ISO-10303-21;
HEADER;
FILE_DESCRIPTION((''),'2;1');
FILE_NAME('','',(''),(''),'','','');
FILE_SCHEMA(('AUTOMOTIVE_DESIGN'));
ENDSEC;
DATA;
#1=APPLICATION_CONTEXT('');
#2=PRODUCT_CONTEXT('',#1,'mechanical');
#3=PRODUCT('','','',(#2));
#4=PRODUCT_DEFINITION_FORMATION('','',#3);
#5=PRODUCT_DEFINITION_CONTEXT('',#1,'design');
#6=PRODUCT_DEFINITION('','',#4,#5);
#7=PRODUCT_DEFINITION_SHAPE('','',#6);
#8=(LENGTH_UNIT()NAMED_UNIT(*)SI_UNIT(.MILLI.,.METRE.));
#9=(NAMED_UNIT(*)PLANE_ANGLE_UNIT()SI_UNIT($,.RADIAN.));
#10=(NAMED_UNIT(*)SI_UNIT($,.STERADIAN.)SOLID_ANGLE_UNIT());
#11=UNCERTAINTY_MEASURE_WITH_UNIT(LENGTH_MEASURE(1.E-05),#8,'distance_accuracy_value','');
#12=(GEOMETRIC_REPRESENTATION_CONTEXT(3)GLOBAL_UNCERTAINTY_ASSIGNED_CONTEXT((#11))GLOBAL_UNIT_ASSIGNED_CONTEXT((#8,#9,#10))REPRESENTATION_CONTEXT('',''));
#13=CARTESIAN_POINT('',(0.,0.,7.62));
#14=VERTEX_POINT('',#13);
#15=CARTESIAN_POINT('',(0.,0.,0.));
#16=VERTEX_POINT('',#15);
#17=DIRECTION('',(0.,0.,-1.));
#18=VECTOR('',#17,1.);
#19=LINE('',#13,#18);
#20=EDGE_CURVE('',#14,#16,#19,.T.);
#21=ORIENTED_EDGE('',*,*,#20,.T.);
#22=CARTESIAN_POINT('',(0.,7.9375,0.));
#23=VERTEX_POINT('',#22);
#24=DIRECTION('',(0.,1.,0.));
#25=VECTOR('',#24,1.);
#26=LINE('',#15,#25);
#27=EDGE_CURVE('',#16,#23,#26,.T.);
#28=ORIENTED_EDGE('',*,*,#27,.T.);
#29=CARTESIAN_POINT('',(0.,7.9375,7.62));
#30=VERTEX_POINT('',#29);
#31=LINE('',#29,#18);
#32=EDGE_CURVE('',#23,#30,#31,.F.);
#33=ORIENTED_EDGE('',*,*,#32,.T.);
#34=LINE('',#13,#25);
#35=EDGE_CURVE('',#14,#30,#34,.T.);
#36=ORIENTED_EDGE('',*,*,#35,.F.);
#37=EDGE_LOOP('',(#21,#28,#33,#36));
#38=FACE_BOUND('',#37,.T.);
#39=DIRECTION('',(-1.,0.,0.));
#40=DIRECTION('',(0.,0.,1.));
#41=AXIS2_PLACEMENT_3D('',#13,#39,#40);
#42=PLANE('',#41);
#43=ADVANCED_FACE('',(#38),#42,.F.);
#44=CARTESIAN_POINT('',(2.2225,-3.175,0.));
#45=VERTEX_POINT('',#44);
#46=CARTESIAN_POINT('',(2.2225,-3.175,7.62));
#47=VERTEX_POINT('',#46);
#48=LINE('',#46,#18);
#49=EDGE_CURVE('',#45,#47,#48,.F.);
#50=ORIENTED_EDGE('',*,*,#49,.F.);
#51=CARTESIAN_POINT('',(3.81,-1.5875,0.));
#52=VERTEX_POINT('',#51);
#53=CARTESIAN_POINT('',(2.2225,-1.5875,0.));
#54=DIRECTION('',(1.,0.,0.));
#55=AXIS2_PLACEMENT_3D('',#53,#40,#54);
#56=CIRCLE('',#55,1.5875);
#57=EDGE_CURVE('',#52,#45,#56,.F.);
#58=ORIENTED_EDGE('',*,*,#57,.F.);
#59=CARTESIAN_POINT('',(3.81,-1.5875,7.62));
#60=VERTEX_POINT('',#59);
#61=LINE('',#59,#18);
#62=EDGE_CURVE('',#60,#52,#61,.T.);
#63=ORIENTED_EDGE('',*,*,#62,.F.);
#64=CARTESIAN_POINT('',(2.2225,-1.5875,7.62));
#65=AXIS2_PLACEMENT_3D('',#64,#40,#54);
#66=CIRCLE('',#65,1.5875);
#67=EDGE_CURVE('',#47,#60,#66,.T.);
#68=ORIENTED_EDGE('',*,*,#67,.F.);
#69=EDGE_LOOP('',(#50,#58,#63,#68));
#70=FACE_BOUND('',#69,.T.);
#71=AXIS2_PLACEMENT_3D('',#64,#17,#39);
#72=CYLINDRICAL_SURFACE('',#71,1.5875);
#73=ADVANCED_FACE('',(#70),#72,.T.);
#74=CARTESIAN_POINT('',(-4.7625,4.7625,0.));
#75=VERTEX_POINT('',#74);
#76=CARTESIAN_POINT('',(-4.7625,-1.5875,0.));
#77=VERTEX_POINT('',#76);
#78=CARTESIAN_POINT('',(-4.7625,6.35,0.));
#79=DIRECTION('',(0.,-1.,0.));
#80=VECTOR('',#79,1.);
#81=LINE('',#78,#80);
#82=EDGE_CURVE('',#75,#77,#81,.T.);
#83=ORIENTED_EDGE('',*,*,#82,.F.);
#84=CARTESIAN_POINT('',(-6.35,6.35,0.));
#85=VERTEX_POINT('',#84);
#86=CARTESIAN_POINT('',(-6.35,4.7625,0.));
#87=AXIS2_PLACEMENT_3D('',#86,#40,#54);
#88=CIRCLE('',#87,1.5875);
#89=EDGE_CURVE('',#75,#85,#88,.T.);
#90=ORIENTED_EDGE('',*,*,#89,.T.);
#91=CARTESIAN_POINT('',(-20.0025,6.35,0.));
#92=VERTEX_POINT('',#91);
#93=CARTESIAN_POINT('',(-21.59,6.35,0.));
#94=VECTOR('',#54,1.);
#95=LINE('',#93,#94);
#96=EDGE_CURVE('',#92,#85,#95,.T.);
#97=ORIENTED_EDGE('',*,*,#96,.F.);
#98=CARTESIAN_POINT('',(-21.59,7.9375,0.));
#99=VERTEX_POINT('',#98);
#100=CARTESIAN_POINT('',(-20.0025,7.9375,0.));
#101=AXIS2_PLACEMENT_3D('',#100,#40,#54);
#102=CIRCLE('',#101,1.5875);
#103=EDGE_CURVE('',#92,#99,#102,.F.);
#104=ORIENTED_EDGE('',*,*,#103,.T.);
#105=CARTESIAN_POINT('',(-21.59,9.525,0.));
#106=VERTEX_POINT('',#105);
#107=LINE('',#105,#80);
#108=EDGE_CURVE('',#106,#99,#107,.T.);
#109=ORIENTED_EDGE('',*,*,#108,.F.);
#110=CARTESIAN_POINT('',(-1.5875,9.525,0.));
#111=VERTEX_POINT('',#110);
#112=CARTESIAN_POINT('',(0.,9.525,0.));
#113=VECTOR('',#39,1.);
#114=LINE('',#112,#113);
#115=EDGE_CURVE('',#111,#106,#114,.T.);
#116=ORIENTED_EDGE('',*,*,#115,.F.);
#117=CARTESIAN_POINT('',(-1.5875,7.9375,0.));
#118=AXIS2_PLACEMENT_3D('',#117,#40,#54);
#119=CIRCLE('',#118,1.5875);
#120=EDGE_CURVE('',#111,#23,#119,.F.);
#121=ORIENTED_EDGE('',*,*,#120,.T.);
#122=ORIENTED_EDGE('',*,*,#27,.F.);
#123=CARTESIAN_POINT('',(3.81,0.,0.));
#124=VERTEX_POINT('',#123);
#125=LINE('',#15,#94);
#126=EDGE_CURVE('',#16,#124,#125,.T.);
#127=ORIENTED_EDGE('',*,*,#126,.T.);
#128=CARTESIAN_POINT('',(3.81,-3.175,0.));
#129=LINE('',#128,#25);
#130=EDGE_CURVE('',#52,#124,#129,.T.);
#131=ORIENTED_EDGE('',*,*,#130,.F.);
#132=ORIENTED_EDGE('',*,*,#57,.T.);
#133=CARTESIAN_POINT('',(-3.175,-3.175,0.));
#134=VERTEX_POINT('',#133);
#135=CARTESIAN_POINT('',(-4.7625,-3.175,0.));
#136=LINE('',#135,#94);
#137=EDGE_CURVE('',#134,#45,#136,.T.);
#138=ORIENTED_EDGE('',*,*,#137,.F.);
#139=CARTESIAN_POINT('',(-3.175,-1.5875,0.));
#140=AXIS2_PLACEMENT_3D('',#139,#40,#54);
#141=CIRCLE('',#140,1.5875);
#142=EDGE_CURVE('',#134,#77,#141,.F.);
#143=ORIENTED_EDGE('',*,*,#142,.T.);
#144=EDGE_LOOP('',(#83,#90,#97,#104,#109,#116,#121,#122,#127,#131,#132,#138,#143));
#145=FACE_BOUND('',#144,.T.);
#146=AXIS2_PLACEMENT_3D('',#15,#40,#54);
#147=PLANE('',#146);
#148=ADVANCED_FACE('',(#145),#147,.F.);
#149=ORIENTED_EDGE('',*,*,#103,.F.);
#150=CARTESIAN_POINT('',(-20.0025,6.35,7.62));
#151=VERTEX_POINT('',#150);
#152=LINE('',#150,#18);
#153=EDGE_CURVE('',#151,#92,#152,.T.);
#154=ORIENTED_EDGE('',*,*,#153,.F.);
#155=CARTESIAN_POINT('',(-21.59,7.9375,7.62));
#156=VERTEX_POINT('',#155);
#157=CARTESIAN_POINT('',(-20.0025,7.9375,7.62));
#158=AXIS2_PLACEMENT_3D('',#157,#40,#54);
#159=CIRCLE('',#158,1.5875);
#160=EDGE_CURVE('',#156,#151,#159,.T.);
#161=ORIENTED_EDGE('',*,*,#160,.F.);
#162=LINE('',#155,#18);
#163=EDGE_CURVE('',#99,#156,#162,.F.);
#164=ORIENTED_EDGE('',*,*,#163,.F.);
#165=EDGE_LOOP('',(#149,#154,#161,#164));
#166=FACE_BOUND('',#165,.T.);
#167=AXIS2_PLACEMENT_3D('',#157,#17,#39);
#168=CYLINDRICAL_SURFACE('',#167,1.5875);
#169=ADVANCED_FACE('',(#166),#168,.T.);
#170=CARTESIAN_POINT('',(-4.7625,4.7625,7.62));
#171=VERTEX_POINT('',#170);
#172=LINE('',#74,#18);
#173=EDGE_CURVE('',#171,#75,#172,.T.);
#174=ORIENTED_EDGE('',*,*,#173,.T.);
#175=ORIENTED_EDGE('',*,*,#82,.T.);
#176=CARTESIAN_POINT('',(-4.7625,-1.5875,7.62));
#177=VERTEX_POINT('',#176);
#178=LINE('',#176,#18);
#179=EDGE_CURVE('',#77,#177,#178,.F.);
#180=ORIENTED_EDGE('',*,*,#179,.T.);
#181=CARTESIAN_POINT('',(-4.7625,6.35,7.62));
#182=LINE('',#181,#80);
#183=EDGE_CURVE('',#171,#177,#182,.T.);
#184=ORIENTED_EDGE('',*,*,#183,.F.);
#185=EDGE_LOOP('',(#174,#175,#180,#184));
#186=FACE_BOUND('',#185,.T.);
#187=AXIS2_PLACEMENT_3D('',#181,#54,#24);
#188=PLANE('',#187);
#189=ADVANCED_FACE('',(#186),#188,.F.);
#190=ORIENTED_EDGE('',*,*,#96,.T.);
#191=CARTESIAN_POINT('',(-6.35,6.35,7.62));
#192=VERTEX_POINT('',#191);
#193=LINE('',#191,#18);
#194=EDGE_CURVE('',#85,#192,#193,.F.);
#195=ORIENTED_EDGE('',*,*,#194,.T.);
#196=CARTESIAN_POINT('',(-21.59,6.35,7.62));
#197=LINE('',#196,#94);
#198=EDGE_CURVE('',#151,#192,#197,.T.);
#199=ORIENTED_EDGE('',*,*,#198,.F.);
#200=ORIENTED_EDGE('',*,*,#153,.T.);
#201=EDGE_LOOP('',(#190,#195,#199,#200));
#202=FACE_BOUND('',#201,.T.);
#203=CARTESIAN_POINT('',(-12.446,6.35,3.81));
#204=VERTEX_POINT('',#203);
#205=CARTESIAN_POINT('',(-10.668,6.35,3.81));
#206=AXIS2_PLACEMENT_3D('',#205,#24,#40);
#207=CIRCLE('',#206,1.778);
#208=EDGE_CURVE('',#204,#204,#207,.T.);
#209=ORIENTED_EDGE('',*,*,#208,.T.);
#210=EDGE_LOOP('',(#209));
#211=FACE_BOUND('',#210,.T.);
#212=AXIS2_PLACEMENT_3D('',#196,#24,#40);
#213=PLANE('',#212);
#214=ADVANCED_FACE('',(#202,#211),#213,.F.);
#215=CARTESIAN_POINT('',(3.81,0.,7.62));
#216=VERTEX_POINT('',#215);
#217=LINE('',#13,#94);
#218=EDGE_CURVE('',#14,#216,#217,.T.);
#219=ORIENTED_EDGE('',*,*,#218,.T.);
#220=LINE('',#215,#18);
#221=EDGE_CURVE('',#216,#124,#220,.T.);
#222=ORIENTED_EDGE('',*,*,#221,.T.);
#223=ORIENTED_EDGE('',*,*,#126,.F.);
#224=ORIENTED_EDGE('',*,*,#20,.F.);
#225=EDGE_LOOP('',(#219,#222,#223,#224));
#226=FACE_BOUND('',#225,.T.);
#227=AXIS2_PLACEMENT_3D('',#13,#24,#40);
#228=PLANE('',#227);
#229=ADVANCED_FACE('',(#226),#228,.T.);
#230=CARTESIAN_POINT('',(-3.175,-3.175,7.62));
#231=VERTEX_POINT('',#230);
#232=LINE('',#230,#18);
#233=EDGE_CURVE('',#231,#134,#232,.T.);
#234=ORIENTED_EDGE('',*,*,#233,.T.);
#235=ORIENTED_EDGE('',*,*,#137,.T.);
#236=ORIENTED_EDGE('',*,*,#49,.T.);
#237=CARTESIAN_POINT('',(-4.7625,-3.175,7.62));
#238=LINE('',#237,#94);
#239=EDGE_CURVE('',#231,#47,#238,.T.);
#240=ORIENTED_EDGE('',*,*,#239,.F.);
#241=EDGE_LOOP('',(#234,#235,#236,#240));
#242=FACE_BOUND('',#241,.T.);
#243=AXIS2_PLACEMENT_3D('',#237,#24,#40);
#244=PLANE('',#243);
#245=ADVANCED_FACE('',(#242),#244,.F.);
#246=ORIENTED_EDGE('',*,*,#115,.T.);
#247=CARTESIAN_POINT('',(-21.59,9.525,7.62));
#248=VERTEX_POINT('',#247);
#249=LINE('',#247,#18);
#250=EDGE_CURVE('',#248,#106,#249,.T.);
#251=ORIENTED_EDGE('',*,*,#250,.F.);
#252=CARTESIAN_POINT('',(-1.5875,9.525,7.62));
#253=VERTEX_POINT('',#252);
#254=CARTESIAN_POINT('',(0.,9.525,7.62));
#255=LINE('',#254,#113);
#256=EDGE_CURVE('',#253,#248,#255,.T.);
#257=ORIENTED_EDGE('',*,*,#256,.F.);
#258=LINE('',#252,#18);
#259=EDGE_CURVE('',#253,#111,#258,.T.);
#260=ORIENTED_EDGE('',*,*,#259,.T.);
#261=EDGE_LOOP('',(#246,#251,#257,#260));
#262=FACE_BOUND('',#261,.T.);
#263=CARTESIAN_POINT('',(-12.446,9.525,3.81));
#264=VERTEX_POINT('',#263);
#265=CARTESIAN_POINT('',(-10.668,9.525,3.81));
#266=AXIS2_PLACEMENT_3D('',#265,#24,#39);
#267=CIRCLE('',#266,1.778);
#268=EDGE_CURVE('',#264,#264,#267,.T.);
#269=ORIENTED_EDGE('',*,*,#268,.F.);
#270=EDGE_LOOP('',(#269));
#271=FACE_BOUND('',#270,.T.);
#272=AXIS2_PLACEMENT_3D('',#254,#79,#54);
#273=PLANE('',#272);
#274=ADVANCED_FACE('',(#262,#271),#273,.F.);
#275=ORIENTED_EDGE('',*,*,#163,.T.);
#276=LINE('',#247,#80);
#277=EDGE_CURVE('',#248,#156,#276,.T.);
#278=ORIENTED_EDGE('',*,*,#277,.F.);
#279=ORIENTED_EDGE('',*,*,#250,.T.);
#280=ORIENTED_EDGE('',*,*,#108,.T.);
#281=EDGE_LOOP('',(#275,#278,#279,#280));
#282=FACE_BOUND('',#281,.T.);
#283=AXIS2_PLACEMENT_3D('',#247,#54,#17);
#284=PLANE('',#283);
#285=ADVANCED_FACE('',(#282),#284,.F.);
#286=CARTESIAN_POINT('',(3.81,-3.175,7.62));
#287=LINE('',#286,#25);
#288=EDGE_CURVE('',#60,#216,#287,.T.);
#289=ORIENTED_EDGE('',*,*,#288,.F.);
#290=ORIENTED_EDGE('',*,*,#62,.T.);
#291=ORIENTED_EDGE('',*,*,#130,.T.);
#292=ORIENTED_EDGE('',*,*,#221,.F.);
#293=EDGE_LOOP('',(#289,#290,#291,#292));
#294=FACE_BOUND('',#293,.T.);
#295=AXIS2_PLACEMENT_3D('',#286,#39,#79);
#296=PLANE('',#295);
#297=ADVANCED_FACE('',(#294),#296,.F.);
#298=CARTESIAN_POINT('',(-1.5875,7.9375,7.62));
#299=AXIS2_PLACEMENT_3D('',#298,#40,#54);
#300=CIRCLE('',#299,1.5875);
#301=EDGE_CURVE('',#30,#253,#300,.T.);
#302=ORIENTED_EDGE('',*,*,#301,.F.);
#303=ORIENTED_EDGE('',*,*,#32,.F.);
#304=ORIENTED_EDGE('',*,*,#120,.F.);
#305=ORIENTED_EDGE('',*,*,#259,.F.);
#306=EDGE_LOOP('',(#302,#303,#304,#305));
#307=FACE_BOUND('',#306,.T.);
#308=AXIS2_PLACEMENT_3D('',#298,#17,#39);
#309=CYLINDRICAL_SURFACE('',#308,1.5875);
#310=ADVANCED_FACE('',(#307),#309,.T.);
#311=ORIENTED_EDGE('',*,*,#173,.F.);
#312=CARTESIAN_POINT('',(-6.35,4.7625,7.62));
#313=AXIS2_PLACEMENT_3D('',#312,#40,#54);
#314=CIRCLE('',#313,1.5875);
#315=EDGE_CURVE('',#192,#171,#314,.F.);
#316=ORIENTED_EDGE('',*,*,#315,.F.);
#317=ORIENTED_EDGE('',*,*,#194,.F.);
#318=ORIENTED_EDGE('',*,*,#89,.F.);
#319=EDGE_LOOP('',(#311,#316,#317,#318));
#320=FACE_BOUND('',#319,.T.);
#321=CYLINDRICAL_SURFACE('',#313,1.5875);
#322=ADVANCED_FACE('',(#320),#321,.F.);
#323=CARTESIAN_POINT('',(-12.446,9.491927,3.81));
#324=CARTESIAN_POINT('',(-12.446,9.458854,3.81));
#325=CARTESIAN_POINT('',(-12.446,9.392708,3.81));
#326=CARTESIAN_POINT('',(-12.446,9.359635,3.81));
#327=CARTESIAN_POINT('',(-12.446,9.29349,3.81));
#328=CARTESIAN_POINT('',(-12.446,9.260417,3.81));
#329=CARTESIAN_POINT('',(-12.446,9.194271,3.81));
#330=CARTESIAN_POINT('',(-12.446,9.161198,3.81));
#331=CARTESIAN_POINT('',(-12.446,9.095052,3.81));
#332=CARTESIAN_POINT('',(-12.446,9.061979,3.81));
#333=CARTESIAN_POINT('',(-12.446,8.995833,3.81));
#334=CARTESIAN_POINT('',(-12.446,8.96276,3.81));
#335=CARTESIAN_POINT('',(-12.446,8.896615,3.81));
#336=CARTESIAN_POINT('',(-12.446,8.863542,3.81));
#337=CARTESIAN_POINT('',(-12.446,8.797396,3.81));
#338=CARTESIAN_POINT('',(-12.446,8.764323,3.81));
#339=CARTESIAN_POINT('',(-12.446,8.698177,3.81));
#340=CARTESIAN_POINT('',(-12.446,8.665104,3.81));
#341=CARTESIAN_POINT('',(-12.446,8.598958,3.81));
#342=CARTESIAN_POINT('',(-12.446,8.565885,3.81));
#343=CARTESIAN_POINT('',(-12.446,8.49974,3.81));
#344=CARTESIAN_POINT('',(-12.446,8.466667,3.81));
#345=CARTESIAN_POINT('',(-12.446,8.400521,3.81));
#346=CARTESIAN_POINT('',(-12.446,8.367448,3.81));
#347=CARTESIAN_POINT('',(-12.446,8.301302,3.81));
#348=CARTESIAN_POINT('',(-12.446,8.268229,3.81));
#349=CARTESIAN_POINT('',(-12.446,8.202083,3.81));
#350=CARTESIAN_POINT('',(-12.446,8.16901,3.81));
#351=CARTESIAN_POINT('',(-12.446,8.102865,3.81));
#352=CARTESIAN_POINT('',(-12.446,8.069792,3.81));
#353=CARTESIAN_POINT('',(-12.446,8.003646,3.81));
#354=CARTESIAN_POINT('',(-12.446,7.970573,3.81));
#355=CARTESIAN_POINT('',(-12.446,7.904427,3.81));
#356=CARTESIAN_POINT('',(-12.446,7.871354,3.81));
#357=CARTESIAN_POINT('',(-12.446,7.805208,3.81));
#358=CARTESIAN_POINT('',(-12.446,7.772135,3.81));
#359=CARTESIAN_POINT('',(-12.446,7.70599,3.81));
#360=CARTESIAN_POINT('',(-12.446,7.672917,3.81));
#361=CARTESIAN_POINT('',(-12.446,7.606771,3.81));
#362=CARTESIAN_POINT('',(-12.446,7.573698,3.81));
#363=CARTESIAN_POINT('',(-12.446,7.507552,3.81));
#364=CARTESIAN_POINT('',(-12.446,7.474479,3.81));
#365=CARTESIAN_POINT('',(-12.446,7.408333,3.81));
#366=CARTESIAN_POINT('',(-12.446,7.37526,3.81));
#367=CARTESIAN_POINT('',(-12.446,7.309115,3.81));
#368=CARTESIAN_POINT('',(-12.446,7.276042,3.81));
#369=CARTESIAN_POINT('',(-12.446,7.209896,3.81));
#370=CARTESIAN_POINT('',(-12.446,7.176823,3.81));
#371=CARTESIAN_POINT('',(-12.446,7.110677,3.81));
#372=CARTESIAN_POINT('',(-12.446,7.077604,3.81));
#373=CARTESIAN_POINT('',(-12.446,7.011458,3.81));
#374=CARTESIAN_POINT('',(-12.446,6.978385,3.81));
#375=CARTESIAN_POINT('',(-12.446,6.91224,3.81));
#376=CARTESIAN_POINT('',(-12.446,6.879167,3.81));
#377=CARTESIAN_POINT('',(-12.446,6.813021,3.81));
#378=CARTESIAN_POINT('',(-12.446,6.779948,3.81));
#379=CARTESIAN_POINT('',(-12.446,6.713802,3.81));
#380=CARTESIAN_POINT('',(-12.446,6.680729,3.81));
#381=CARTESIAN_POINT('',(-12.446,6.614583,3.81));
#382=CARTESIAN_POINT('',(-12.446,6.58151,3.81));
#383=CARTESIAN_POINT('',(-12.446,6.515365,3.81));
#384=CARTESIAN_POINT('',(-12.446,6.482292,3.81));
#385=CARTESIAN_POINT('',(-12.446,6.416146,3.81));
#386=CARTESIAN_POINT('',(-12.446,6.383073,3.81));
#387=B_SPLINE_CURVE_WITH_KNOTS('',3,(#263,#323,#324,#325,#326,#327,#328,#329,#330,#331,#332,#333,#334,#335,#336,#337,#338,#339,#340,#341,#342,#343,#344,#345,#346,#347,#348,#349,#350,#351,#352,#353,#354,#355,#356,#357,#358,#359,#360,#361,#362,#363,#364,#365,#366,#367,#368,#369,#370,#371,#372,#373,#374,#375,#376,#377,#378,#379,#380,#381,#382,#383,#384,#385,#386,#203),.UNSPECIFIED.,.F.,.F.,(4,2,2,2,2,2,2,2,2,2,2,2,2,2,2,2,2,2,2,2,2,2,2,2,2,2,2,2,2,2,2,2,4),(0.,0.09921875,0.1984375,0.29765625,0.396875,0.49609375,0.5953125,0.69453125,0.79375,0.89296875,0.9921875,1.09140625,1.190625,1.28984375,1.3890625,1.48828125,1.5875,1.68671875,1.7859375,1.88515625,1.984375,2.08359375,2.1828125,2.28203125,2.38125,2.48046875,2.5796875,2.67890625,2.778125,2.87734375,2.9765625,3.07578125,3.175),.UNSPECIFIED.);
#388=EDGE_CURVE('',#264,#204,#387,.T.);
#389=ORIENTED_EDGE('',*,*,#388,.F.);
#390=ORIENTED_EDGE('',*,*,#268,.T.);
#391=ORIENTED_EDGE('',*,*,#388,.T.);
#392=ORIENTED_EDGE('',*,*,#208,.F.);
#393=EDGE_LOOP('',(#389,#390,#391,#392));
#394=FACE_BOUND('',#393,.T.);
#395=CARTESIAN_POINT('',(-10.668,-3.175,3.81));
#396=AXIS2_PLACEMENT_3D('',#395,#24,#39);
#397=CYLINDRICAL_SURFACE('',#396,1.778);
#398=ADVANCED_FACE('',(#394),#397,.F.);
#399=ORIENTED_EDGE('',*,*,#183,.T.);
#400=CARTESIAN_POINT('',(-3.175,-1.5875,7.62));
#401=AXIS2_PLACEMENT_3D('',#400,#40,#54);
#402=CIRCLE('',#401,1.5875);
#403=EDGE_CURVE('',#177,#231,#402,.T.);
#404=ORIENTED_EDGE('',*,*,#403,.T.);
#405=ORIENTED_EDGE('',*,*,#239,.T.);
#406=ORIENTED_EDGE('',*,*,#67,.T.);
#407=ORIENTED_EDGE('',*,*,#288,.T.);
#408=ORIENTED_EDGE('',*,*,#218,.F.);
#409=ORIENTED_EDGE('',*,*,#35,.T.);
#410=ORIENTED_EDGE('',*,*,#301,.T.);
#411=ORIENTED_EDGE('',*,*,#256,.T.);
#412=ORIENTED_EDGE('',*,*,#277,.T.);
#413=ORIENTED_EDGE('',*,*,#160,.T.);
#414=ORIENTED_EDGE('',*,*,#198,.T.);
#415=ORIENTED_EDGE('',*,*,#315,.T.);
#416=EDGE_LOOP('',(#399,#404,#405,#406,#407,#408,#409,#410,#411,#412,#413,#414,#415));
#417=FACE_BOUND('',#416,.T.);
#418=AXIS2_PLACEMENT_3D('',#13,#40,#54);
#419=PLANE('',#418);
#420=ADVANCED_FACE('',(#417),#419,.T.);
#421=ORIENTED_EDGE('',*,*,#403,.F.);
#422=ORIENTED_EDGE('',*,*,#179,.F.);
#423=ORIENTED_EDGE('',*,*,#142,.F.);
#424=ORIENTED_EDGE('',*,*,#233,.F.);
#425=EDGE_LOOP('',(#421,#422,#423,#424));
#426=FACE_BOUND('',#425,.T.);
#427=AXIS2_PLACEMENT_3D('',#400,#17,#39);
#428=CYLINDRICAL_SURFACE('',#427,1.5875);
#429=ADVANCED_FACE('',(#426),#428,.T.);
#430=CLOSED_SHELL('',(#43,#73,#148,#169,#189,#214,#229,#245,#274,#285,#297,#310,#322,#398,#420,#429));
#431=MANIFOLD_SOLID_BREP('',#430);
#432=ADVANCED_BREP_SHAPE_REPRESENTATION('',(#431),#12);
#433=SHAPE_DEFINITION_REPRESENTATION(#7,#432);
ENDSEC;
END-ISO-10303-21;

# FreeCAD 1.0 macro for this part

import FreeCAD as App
import Part
import Sketcher
Q = App.Units.Quantity


def edges_at(feature, points):
    """Names of the edges that pass closest to the given points."""
    edges = feature.Shape.Edges
    near = lambda p: min(range(len(edges)), key=lambda i: edges[i].distToShape(Part.Vertex(*p))[0])
    return sorted({f"Edge{near(p) + 1}" for p in points})

doc = App.newDocument("Part")
body = doc.addObject("PartDesign::Body", "Body")

sketch1 = body.newObject("Sketcher::SketchObject", "Sketch")
sketch1.AttachmentSupport = (doc.getObject("XY_Plane"), [""])
sketch1.MapMode = "FlatFace"
sketch1.addGeometry(Part.LineSegment(App.Vector(0, 0, 0), App.Vector(0, 9.525, 0)), False)
sketch1.addGeometry(Part.LineSegment(App.Vector(0, 9.525, 0), App.Vector(-21.59, 9.525, 0)), False)
sketch1.addGeometry(Part.LineSegment(App.Vector(-21.59, 9.525, 0), App.Vector(-21.59, 6.35, 0)), False)
sketch1.addGeometry(Part.LineSegment(App.Vector(-21.59, 6.35, 0), App.Vector(-4.7625, 6.35, 0)), False)
sketch1.addGeometry(Part.LineSegment(App.Vector(-4.7625, 6.35, 0), App.Vector(-4.7625, -3.175, 0)), False)
sketch1.addGeometry(Part.LineSegment(App.Vector(-4.7625, -3.175, 0), App.Vector(3.81, -3.175, 0)), False)
sketch1.addGeometry(Part.LineSegment(App.Vector(3.81, -3.175, 0), App.Vector(3.81, 0, 0)), False)
sketch1.addGeometry(Part.LineSegment(App.Vector(3.81, 0, 0), App.Vector(0, 0, 0)), False)
sketch1.addConstraint(Sketcher.Constraint("Coincident", 0, 2, 1, 1))
sketch1.addConstraint(Sketcher.Constraint("Coincident", 1, 2, 2, 1))
sketch1.addConstraint(Sketcher.Constraint("Coincident", 2, 2, 3, 1))
sketch1.addConstraint(Sketcher.Constraint("Coincident", 3, 2, 4, 1))
sketch1.addConstraint(Sketcher.Constraint("Coincident", 4, 2, 5, 1))
sketch1.addConstraint(Sketcher.Constraint("Coincident", 5, 2, 6, 1))
sketch1.addConstraint(Sketcher.Constraint("Coincident", 6, 2, 7, 1))
sketch1.addConstraint(Sketcher.Constraint("Coincident", 7, 2, 0, 1))
sketch1.addConstraint(Sketcher.Constraint("Vertical", 0))
sketch1.addConstraint(Sketcher.Constraint("Horizontal", 1))
sketch1.addConstraint(Sketcher.Constraint("Vertical", 2))
sketch1.addConstraint(Sketcher.Constraint("Horizontal", 3))
sketch1.addConstraint(Sketcher.Constraint("Vertical", 4))
sketch1.addConstraint(Sketcher.Constraint("Horizontal", 5))
sketch1.addConstraint(Sketcher.Constraint("Vertical", 6))
sketch1.addConstraint(Sketcher.Constraint("Horizontal", 7))
sketch1.addConstraint(Sketcher.Constraint("Coincident", 7, 2, -1, 1))
sketch1.addConstraint(Sketcher.Constraint("Equal", 0, 4))
sketch1.addConstraint(Sketcher.Constraint("DistanceX", 2, 2, 5, 2, Q("1 in")))
sketch1.addConstraint(Sketcher.Constraint("DistanceX", 1, 2, 1, 1, Q("0.85 in")))
sketch1.addConstraint(Sketcher.Constraint("DistanceY", 4, 2, 0, 2, Q("0.5 in")))
sketch1.addConstraint(Sketcher.Constraint("DistanceY", 0, 1, 0, 2, Q("0.375 in")))
sketch1.addConstraint(Sketcher.Constraint("DistanceX", 3, 1, 3, 2, Q("0.6625 in")))
pad1 = body.newObject("PartDesign::Pad", "Pad")
pad1.Profile = sketch1
pad1.Length = Q("0.3 in")

sketch2 = body.newObject("Sketcher::SketchObject", "Sketch001")
sketch2.AttachmentSupport = (doc.getObject("XZ_Plane"), [""])
sketch2.MapMode = "FlatFace"
sketch2.AttachmentOffset = App.Placement(App.Vector(0, 0, -0.375 * 25.4), App.Rotation())
sketch2.addGeometry(Part.Circle(App.Vector(-10.668, 3.81, 0), App.Vector(0, 0, 1), 1.778), False)
sketch2.addConstraint(Sketcher.Constraint("Diameter", 0, Q("0.14 in")))
sketch2.addConstraint(Sketcher.Constraint("DistanceX", 0, 3, -1, 1, Q("0.42 in")))
sketch2.addConstraint(Sketcher.Constraint("DistanceY", -1, 1, 0, 3, Q("0.15 in")))
pocket1 = body.newObject("PartDesign::Pocket", "Pocket")
pocket1.Profile = sketch2
pocket1.Type = "ThroughAll"
pocket1.Reversed = True
doc.recompute()

fillet = body.newObject("PartDesign::Fillet", "Fillet")
fillet.Base = (pocket1, edges_at(pocket1, [
    (-4.763, -3.175, 3.81),
    (-4.763, 6.35, 3.81),
    (-21.59, 6.35, 3.81),
    (0, 9.525, 3.81),
    (3.81, -3.175, 3.81),
]))
fillet.Radius = Q("0.0625 in")

doc.recompute()
